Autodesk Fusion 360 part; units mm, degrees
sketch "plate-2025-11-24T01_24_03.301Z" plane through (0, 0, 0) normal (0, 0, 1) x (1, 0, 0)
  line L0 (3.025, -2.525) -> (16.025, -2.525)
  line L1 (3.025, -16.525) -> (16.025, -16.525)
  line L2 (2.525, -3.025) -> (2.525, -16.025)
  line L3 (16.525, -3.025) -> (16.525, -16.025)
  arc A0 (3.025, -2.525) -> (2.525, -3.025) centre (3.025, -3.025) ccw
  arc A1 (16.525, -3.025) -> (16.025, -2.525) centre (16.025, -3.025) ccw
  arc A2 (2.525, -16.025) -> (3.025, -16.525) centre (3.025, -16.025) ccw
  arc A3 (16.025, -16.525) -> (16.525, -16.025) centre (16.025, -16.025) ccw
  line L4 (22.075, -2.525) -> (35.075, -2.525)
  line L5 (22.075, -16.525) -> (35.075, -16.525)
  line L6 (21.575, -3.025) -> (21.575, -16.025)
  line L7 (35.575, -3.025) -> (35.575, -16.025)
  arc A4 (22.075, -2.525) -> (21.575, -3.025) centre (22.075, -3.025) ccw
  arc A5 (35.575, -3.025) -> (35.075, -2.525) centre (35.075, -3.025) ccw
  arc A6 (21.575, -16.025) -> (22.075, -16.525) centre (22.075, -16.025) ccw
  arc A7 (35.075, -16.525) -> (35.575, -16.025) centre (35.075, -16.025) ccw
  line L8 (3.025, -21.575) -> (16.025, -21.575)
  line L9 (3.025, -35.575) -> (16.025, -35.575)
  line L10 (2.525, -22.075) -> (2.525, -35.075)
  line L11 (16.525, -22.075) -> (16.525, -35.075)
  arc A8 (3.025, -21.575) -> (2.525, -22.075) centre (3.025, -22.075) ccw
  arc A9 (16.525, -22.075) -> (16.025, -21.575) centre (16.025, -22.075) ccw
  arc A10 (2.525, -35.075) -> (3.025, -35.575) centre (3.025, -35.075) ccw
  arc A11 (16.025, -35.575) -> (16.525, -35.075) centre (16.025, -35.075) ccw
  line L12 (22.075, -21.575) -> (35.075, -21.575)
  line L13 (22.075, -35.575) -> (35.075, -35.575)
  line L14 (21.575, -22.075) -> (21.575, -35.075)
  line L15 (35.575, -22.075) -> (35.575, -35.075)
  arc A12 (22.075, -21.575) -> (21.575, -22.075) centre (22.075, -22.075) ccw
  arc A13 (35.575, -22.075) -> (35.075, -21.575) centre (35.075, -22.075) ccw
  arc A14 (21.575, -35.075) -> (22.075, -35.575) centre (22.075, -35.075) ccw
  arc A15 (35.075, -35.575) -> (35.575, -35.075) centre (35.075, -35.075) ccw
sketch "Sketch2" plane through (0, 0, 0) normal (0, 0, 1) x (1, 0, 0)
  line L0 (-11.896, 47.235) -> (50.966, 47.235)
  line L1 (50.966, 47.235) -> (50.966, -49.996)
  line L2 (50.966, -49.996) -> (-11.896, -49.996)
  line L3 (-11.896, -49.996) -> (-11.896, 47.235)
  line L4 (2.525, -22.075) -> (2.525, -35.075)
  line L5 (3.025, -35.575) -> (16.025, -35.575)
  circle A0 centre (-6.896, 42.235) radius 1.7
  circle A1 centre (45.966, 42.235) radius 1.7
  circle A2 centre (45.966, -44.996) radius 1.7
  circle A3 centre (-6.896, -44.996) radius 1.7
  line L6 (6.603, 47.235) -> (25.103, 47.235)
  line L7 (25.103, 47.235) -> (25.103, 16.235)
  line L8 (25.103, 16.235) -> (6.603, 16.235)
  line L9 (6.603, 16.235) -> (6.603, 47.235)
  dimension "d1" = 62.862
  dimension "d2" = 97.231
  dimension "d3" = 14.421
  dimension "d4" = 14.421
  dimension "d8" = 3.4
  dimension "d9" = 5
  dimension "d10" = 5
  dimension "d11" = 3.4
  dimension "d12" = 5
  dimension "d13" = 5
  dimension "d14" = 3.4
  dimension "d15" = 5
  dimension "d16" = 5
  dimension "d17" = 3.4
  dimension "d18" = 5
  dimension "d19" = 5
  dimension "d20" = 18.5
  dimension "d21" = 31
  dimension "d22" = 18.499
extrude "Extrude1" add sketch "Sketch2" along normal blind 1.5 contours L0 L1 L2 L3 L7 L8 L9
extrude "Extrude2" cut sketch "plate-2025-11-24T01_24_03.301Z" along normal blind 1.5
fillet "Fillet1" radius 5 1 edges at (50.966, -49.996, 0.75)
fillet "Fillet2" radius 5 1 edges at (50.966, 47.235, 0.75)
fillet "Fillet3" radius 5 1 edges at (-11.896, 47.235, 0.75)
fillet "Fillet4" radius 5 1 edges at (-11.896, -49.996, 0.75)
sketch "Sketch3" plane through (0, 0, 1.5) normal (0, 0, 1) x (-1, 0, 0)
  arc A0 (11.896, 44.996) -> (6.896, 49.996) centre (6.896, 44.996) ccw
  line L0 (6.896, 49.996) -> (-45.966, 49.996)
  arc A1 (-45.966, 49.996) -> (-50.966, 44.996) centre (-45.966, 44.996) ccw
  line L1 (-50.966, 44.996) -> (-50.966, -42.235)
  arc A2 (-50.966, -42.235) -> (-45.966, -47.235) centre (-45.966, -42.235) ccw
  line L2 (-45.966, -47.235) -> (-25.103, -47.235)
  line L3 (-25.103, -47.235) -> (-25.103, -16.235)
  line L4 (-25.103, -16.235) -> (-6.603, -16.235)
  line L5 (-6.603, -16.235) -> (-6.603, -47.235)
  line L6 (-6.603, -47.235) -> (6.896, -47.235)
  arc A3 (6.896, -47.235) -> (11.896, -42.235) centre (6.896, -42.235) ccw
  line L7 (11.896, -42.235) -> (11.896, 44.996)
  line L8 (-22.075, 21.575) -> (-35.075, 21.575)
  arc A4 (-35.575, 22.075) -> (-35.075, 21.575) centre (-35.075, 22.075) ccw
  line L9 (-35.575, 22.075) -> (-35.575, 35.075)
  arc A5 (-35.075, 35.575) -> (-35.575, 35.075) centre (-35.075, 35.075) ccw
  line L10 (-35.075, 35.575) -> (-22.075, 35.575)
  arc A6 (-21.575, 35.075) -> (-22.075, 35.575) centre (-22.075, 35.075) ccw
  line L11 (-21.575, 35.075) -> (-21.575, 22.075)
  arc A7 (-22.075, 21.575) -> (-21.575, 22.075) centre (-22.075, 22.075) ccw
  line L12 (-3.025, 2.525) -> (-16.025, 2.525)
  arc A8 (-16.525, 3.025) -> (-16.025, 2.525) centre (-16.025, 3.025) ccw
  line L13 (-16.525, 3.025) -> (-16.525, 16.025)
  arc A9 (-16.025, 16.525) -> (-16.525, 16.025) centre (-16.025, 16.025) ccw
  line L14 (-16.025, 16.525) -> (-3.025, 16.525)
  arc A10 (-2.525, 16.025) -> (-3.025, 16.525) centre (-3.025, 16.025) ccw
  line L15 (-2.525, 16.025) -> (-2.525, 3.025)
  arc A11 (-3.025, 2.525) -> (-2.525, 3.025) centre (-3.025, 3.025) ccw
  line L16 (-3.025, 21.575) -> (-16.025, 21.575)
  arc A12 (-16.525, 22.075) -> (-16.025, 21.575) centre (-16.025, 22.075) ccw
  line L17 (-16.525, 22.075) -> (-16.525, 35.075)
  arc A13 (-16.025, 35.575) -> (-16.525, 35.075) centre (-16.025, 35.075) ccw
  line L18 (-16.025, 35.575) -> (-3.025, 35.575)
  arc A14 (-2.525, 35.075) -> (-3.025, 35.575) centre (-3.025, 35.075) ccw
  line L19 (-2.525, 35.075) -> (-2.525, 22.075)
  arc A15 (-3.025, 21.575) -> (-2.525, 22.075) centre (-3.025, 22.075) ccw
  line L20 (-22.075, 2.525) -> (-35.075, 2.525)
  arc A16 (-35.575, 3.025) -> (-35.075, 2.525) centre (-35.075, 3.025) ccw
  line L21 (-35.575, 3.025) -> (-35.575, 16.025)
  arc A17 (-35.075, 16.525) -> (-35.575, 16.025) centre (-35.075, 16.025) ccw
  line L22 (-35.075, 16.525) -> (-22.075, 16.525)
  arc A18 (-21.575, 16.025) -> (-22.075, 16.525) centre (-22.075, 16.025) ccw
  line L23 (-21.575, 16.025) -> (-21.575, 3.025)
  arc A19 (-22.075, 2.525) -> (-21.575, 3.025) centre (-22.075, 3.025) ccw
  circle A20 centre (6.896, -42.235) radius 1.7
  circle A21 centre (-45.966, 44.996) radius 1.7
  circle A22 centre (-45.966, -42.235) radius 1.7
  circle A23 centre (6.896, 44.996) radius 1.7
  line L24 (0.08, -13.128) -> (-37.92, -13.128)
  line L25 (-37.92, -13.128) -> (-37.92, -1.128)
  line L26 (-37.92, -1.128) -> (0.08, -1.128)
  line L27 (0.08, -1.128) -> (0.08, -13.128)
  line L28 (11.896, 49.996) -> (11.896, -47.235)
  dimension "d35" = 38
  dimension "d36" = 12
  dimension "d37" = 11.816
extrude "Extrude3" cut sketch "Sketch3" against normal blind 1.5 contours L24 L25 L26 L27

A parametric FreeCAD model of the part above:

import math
import FreeCAD as App
import Part
import Sketcher
from FreeCAD import Vector


def edges_at(feature, points):
    """Names of the edges that pass closest to the given points."""
    edges = feature.Shape.Edges
    near = lambda p: min(range(len(edges)), key=lambda i: edges[i].distToShape(Part.Vertex(*p))[0])
    return sorted({f"Edge{near(p) + 1}" for p in points})


def add_polygon(sketch, points):
    """Adds a closed chain of lines whose ends are joined by coincident constraints."""
    first, n = sketch.GeometryCount, len(points)
    for a, b in zip(points, points[1:] + points[:1]):
        sketch.addGeometry(Part.LineSegment(App.Vector(*a, 0), App.Vector(*b, 0)), False)
    for i in range(n):
        sketch.addConstraint(Sketcher.Constraint("Coincident", first + i, 2, first + (i + 1) % n, 1))

doc = App.newDocument("Part")
body = doc.addObject("PartDesign::Body", "Body")

# Sketch on XY plane
sketch1 = body.newObject("Sketcher::SketchObject", "Sketch")
sketch1.AttachmentSupport = (doc.getObject("XY_Plane"), [""])
sketch1.MapMode = "FlatFace"
add_polygon(sketch1, [(6.6, 47.2), (-11.9, 47.2), (-11.9, -50), (51, -50), (51, 47.2), (25.1, 47.2), (25.1, 16.2), (6.6, 16.2)])  # lines 0-7
sketch1.addGeometry(Part.Circle(Vector(-6.9, -45, 0), Vector(0, 0, 1), 1.7), False)  # 8
sketch1.addGeometry(Part.Circle(Vector(46, -45, 0), Vector(0, 0, 1), 1.7), False)  # 9
sketch1.addGeometry(Part.Circle(Vector(-6.9, 42.2, 0), Vector(0, 0, 1), 1.7), False)  # 10
sketch1.addGeometry(Part.Circle(Vector(46, 42.2, 0), Vector(0, 0, 1), 1.7), False)  # 11
sketch1.addConstraint([
    Sketcher.Constraint("Horizontal", 0),
    Sketcher.Constraint("Vertical", 1),
    Sketcher.Constraint("Horizontal", 2),
    Sketcher.Constraint("Vertical", 3),
    Sketcher.Constraint("Horizontal", 4),
    Sketcher.Constraint("Vertical", 5),
    Sketcher.Constraint("Horizontal", 6),
    Sketcher.Constraint("Vertical", 7),
    Sketcher.Constraint("Equal", 8, 9),
    Sketcher.Constraint("Equal", 9, 10),
    Sketcher.Constraint("Equal", 10, 11),
    Sketcher.Constraint("Horizontal", 8, 3, 9, 3),
    Sketcher.Constraint("Horizontal", 10, 3, 11, 3),
    Sketcher.Constraint("Horizontal", 0, 2, 3, 2),
    Sketcher.Constraint("Vertical", 8, 3, 10, 3),
    Sketcher.Constraint("Vertical", 9, 3, 11, 3),
    Sketcher.Constraint("Diameter", 8, 3.4),
    Sketcher.Constraint("DistanceY", 5, 2, 5, 1, 31.0),
    Sketcher.Constraint("DistanceX", 6, 2, 6, 1, 18.5),
    Sketcher.Constraint("DistanceX", 0, 2, 10, 3, 5.0),
    Sketcher.Constraint("DistanceY", 10, 3, 0, 2, 5.0),
    Sketcher.Constraint("DistanceY", 1, 2, 8, 3, 5.0),
    Sketcher.Constraint("DistanceX", 9, 3, 2, 2, 5.0),
    Sketcher.Constraint("DistanceX", 0, 2, 0, 1, 18.499),
    Sketcher.Constraint("DistanceX", 2, 1, 2, 2, 62.862),
    Sketcher.Constraint("DistanceY", 1, 2, 1, 1, 97.231),
    Sketcher.Constraint("DistanceX", 8, 3, -1, 1, 6.896),
    Sketcher.Constraint("DistanceY", 8, 3, -1, 1, 44.996),
])
pad1 = body.newObject("PartDesign::Pad", "Pad")
pad1.Profile = sketch1
pad1.Length = 1.5

# Sketch on XY plane
sketch2 = body.newObject("Sketcher::SketchObject", "Sketch001")
sketch2.AttachmentSupport = (doc.getObject("XY_Plane"), [""])
sketch2.MapMode = "FlatFace"
sketch2.addGeometry([
    Part.LineSegment(Vector(16, -2.5, 0), Vector(3, -2.5, 0)),  # 0
    Part.ArcOfCircle(Part.Circle(Vector(3, -3, 0), Vector(0, 0, 1), 0.5), math.radians(90), math.radians(180)),  # 1
    Part.LineSegment(Vector(2.5, -3, 0), Vector(2.5, -16, 0)),  # 2
    Part.ArcOfCircle(Part.Circle(Vector(3, -16, 0), Vector(0, 0, 1), 0.5), math.radians(180), math.radians(270)),  # 3
    Part.LineSegment(Vector(3, -16.5, 0), Vector(16, -16.5, 0)),  # 4
    Part.ArcOfCircle(Part.Circle(Vector(16, -16, 0), Vector(0, 0, 1), 0.5), math.radians(-90), math.radians(0)),  # 5
    Part.LineSegment(Vector(16.5, -16, 0), Vector(16.5, -3, 0)),  # 6
    Part.ArcOfCircle(Part.Circle(Vector(16, -3, 0), Vector(0, 0, 1), 0.5), math.radians(0), math.radians(90)),  # 7
    Part.LineSegment(Vector(35.1, -2.5, 0), Vector(22.1, -2.5, 0)),  # 8
    Part.ArcOfCircle(Part.Circle(Vector(22.1, -3, 0), Vector(0, 0, 1), 0.5), math.radians(90), math.radians(180)),  # 9
    Part.LineSegment(Vector(21.6, -3, 0), Vector(21.6, -16, 0)),  # 10
    Part.ArcOfCircle(Part.Circle(Vector(22.1, -16, 0), Vector(0, 0, 1), 0.5), math.radians(180), math.radians(270)),  # 11
    Part.LineSegment(Vector(22.1, -16.5, 0), Vector(35.1, -16.5, 0)),  # 12
    Part.ArcOfCircle(Part.Circle(Vector(35.1, -16, 0), Vector(0, 0, 1), 0.5), math.radians(-90), math.radians(0)),  # 13
    Part.LineSegment(Vector(35.6, -16, 0), Vector(35.6, -3, 0)),  # 14
    Part.ArcOfCircle(Part.Circle(Vector(35.1, -3, 0), Vector(0, 0, 1), 0.5), math.radians(0), math.radians(90)),  # 15
    Part.LineSegment(Vector(16, -21.6, 0), Vector(3, -21.6, 0)),  # 16
    Part.ArcOfCircle(Part.Circle(Vector(3, -22.1, 0), Vector(0, 0, 1), 0.5), math.radians(90), math.radians(180)),  # 17
    Part.LineSegment(Vector(2.5, -22.1, 0), Vector(2.5, -35.1, 0)),  # 18
    Part.ArcOfCircle(Part.Circle(Vector(3, -35.1, 0), Vector(0, 0, 1), 0.5), math.radians(180), math.radians(270)),  # 19
    Part.LineSegment(Vector(3, -35.6, 0), Vector(16, -35.6, 0)),  # 20
    Part.ArcOfCircle(Part.Circle(Vector(16, -35.1, 0), Vector(0, 0, 1), 0.5), math.radians(-90), math.radians(0)),  # 21
    Part.LineSegment(Vector(16.5, -35.1, 0), Vector(16.5, -22.1, 0)),  # 22
    Part.ArcOfCircle(Part.Circle(Vector(16, -22.1, 0), Vector(0, 0, 1), 0.5), math.radians(0), math.radians(90)),  # 23
    Part.LineSegment(Vector(35.1, -21.6, 0), Vector(22.1, -21.6, 0)),  # 24
    Part.ArcOfCircle(Part.Circle(Vector(22.1, -22.1, 0), Vector(0, 0, 1), 0.5), math.radians(90), math.radians(180)),  # 25
    Part.LineSegment(Vector(21.6, -22.1, 0), Vector(21.6, -35.1, 0)),  # 26
    Part.ArcOfCircle(Part.Circle(Vector(22.1, -35.1, 0), Vector(0, 0, 1), 0.5), math.radians(180), math.radians(270)),  # 27
    Part.LineSegment(Vector(22.1, -35.6, 0), Vector(35.1, -35.6, 0)),  # 28
    Part.ArcOfCircle(Part.Circle(Vector(35.1, -35.1, 0), Vector(0, 0, 1), 0.5), math.radians(-90), math.radians(0)),  # 29
    Part.LineSegment(Vector(35.6, -35.1, 0), Vector(35.6, -22.1, 0)),  # 30
    Part.ArcOfCircle(Part.Circle(Vector(35.1, -22.1, 0), Vector(0, 0, 1), 0.5), math.radians(0), math.radians(90)),  # 31
], False)
sketch2.addConstraint([
    Sketcher.Constraint("Tangent", 0, 2, 1, 1),
    Sketcher.Constraint("Tangent", 1, 2, 2, 1),
    Sketcher.Constraint("Tangent", 2, 2, 3, 1),
    Sketcher.Constraint("Tangent", 3, 2, 4, 1),
    Sketcher.Constraint("Tangent", 4, 2, 5, 1),
    Sketcher.Constraint("Tangent", 5, 2, 6, 1),
    Sketcher.Constraint("Tangent", 6, 2, 7, 1),
    Sketcher.Constraint("Tangent", 7, 2, 0, 1),
    Sketcher.Constraint("Tangent", 8, 2, 9, 1),
    Sketcher.Constraint("Tangent", 9, 2, 10, 1),
    Sketcher.Constraint("Tangent", 10, 2, 11, 1),
    Sketcher.Constraint("Tangent", 11, 2, 12, 1),
    Sketcher.Constraint("Tangent", 12, 2, 13, 1),
    Sketcher.Constraint("Tangent", 13, 2, 14, 1),
    Sketcher.Constraint("Tangent", 14, 2, 15, 1),
    Sketcher.Constraint("Tangent", 15, 2, 8, 1),
    Sketcher.Constraint("Tangent", 16, 2, 17, 1),
    Sketcher.Constraint("Tangent", 17, 2, 18, 1),
    Sketcher.Constraint("Tangent", 18, 2, 19, 1),
    Sketcher.Constraint("Tangent", 19, 2, 20, 1),
    Sketcher.Constraint("Tangent", 20, 2, 21, 1),
    Sketcher.Constraint("Tangent", 21, 2, 22, 1),
    Sketcher.Constraint("Tangent", 22, 2, 23, 1),
    Sketcher.Constraint("Tangent", 23, 2, 16, 1),
    Sketcher.Constraint("Tangent", 24, 2, 25, 1),
    Sketcher.Constraint("Tangent", 25, 2, 26, 1),
    Sketcher.Constraint("Tangent", 26, 2, 27, 1),
    Sketcher.Constraint("Tangent", 27, 2, 28, 1),
    Sketcher.Constraint("Tangent", 28, 2, 29, 1),
    Sketcher.Constraint("Tangent", 29, 2, 30, 1),
    Sketcher.Constraint("Tangent", 30, 2, 31, 1),
    Sketcher.Constraint("Tangent", 31, 2, 24, 1),
    Sketcher.Constraint("Horizontal", 0),
    Sketcher.Constraint("Vertical", 2),
    Sketcher.Constraint("Horizontal", 4),
    Sketcher.Constraint("Vertical", 6),
    Sketcher.Constraint("Horizontal", 8),
    Sketcher.Constraint("Vertical", 10),
    Sketcher.Constraint("Horizontal", 12),
    Sketcher.Constraint("Vertical", 14),
    Sketcher.Constraint("Horizontal", 16),
    Sketcher.Constraint("Vertical", 18),
    Sketcher.Constraint("Horizontal", 20),
    Sketcher.Constraint("Vertical", 22),
    Sketcher.Constraint("Horizontal", 24),
    Sketcher.Constraint("Vertical", 26),
    Sketcher.Constraint("Horizontal", 28),
    Sketcher.Constraint("Vertical", 30),
    Sketcher.Constraint("Equal", 1, 3),
    Sketcher.Constraint("Equal", 3, 5),
    Sketcher.Constraint("Equal", 5, 7),
    Sketcher.Constraint("Equal", 7, 9),
    Sketcher.Constraint("Equal", 9, 11),
    Sketcher.Constraint("Equal", 11, 13),
    Sketcher.Constraint("Equal", 13, 15),
    Sketcher.Constraint("Equal", 15, 17),
    Sketcher.Constraint("Equal", 17, 19),
    Sketcher.Constraint("Equal", 19, 21),
    Sketcher.Constraint("Equal", 21, 23),
    Sketcher.Constraint("Equal", 23, 25),
    Sketcher.Constraint("Equal", 25, 27),
    Sketcher.Constraint("Equal", 27, 29),
    Sketcher.Constraint("Equal", 29, 31),
    Sketcher.Constraint("Horizontal", 7, 3, 9, 3),
    Sketcher.Constraint("Horizontal", 5, 3, 11, 3),
    Sketcher.Constraint("Horizontal", 23, 3, 25, 3),
    Sketcher.Constraint("Horizontal", 21, 3, 27, 3),
    Sketcher.Constraint("Vertical", 3, 3, 17, 3),
    Sketcher.Constraint("Vertical", 7, 3, 21, 3),
    Sketcher.Constraint("Vertical", 11, 3, 25, 3),
    Sketcher.Constraint("Vertical", 15, 3, 29, 3),
    Sketcher.Constraint("Equal", 4, 8),
    Sketcher.Constraint("Equal", 28, 2),
    Sketcher.Constraint("Equal", 14, 18),
    Sketcher.Constraint("Radius", 1, 0.5),
    Sketcher.Constraint("DistanceX", 0, 2, 0, 1, 13.0),
    Sketcher.Constraint("DistanceX", 7, 3, 9, 3, 6.05),
    Sketcher.Constraint("DistanceY", 17, 3, 3, 3, 6.05),
    Sketcher.Constraint("DistanceX", -1, 1, 1, 3, 3.025),
    Sketcher.Constraint("DistanceY", 1, 3, -1, 1, 3.025),
])
pocket1 = body.newObject("PartDesign::Pocket", "Pocket")
pocket1.Profile = sketch2
pocket1.Length = 1.5
pocket1.Reversed = True
doc.recompute()

fillet = body.newObject("PartDesign::Fillet", "Fillet")
fillet.Base = (pocket1, edges_at(pocket1, [(50.966, -49.996, 0.75)]))
fillet.Radius = 5
doc.recompute()

fillet2 = body.newObject("PartDesign::Fillet", "Fillet001")
fillet2.Base = (fillet, edges_at(fillet, [(50.966, 47.235, 0.75)]))
fillet2.Radius = 5
doc.recompute()

fillet3 = body.newObject("PartDesign::Fillet", "Fillet002")
fillet3.Base = (fillet2, edges_at(fillet2, [(-11.896, 47.235, 0.75)]))
fillet3.Radius = 5
doc.recompute()

fillet4 = body.newObject("PartDesign::Fillet", "Fillet003")
fillet4.Base = (fillet3, edges_at(fillet3, [(-11.896, -49.996, 0.75)]))
fillet4.Radius = 5

# Sketch on XY plane
sketch3 = body.newObject("Sketcher::SketchObject", "Sketch002")
sketch3.AttachmentSupport = (doc.getObject("XY_Plane"), [""])
sketch3.MapMode = "FlatFace"
sketch3.AttachmentOffset = App.Placement(Vector(0, 0, 1.5), App.Rotation())
add_polygon(sketch3, [(38, 13), (0, 13), (0, 1), (38, 1)])  # lines 0-3
sketch3.addConstraint([
    Sketcher.Constraint("Horizontal", 0),
    Sketcher.Constraint("Vertical", 1),
    Sketcher.Constraint("Horizontal", 2),
    Sketcher.Constraint("Vertical", 3),
    Sketcher.Constraint("DistanceX", 0, 2, 0, 1, 38.0),
    Sketcher.Constraint("DistanceY", 1, 2, 1, 1, 12.0),
    Sketcher.Constraint("DistanceX", 0, 2, -1, 1, 0.08),
    Sketcher.Constraint("DistanceY", -1, 1, 0, 2, 13.128),
])
pocket2 = body.newObject("PartDesign::Pocket", "Pocket001")
pocket2.Profile = sketch3
pocket2.Length = 1.5

doc.recompute()
